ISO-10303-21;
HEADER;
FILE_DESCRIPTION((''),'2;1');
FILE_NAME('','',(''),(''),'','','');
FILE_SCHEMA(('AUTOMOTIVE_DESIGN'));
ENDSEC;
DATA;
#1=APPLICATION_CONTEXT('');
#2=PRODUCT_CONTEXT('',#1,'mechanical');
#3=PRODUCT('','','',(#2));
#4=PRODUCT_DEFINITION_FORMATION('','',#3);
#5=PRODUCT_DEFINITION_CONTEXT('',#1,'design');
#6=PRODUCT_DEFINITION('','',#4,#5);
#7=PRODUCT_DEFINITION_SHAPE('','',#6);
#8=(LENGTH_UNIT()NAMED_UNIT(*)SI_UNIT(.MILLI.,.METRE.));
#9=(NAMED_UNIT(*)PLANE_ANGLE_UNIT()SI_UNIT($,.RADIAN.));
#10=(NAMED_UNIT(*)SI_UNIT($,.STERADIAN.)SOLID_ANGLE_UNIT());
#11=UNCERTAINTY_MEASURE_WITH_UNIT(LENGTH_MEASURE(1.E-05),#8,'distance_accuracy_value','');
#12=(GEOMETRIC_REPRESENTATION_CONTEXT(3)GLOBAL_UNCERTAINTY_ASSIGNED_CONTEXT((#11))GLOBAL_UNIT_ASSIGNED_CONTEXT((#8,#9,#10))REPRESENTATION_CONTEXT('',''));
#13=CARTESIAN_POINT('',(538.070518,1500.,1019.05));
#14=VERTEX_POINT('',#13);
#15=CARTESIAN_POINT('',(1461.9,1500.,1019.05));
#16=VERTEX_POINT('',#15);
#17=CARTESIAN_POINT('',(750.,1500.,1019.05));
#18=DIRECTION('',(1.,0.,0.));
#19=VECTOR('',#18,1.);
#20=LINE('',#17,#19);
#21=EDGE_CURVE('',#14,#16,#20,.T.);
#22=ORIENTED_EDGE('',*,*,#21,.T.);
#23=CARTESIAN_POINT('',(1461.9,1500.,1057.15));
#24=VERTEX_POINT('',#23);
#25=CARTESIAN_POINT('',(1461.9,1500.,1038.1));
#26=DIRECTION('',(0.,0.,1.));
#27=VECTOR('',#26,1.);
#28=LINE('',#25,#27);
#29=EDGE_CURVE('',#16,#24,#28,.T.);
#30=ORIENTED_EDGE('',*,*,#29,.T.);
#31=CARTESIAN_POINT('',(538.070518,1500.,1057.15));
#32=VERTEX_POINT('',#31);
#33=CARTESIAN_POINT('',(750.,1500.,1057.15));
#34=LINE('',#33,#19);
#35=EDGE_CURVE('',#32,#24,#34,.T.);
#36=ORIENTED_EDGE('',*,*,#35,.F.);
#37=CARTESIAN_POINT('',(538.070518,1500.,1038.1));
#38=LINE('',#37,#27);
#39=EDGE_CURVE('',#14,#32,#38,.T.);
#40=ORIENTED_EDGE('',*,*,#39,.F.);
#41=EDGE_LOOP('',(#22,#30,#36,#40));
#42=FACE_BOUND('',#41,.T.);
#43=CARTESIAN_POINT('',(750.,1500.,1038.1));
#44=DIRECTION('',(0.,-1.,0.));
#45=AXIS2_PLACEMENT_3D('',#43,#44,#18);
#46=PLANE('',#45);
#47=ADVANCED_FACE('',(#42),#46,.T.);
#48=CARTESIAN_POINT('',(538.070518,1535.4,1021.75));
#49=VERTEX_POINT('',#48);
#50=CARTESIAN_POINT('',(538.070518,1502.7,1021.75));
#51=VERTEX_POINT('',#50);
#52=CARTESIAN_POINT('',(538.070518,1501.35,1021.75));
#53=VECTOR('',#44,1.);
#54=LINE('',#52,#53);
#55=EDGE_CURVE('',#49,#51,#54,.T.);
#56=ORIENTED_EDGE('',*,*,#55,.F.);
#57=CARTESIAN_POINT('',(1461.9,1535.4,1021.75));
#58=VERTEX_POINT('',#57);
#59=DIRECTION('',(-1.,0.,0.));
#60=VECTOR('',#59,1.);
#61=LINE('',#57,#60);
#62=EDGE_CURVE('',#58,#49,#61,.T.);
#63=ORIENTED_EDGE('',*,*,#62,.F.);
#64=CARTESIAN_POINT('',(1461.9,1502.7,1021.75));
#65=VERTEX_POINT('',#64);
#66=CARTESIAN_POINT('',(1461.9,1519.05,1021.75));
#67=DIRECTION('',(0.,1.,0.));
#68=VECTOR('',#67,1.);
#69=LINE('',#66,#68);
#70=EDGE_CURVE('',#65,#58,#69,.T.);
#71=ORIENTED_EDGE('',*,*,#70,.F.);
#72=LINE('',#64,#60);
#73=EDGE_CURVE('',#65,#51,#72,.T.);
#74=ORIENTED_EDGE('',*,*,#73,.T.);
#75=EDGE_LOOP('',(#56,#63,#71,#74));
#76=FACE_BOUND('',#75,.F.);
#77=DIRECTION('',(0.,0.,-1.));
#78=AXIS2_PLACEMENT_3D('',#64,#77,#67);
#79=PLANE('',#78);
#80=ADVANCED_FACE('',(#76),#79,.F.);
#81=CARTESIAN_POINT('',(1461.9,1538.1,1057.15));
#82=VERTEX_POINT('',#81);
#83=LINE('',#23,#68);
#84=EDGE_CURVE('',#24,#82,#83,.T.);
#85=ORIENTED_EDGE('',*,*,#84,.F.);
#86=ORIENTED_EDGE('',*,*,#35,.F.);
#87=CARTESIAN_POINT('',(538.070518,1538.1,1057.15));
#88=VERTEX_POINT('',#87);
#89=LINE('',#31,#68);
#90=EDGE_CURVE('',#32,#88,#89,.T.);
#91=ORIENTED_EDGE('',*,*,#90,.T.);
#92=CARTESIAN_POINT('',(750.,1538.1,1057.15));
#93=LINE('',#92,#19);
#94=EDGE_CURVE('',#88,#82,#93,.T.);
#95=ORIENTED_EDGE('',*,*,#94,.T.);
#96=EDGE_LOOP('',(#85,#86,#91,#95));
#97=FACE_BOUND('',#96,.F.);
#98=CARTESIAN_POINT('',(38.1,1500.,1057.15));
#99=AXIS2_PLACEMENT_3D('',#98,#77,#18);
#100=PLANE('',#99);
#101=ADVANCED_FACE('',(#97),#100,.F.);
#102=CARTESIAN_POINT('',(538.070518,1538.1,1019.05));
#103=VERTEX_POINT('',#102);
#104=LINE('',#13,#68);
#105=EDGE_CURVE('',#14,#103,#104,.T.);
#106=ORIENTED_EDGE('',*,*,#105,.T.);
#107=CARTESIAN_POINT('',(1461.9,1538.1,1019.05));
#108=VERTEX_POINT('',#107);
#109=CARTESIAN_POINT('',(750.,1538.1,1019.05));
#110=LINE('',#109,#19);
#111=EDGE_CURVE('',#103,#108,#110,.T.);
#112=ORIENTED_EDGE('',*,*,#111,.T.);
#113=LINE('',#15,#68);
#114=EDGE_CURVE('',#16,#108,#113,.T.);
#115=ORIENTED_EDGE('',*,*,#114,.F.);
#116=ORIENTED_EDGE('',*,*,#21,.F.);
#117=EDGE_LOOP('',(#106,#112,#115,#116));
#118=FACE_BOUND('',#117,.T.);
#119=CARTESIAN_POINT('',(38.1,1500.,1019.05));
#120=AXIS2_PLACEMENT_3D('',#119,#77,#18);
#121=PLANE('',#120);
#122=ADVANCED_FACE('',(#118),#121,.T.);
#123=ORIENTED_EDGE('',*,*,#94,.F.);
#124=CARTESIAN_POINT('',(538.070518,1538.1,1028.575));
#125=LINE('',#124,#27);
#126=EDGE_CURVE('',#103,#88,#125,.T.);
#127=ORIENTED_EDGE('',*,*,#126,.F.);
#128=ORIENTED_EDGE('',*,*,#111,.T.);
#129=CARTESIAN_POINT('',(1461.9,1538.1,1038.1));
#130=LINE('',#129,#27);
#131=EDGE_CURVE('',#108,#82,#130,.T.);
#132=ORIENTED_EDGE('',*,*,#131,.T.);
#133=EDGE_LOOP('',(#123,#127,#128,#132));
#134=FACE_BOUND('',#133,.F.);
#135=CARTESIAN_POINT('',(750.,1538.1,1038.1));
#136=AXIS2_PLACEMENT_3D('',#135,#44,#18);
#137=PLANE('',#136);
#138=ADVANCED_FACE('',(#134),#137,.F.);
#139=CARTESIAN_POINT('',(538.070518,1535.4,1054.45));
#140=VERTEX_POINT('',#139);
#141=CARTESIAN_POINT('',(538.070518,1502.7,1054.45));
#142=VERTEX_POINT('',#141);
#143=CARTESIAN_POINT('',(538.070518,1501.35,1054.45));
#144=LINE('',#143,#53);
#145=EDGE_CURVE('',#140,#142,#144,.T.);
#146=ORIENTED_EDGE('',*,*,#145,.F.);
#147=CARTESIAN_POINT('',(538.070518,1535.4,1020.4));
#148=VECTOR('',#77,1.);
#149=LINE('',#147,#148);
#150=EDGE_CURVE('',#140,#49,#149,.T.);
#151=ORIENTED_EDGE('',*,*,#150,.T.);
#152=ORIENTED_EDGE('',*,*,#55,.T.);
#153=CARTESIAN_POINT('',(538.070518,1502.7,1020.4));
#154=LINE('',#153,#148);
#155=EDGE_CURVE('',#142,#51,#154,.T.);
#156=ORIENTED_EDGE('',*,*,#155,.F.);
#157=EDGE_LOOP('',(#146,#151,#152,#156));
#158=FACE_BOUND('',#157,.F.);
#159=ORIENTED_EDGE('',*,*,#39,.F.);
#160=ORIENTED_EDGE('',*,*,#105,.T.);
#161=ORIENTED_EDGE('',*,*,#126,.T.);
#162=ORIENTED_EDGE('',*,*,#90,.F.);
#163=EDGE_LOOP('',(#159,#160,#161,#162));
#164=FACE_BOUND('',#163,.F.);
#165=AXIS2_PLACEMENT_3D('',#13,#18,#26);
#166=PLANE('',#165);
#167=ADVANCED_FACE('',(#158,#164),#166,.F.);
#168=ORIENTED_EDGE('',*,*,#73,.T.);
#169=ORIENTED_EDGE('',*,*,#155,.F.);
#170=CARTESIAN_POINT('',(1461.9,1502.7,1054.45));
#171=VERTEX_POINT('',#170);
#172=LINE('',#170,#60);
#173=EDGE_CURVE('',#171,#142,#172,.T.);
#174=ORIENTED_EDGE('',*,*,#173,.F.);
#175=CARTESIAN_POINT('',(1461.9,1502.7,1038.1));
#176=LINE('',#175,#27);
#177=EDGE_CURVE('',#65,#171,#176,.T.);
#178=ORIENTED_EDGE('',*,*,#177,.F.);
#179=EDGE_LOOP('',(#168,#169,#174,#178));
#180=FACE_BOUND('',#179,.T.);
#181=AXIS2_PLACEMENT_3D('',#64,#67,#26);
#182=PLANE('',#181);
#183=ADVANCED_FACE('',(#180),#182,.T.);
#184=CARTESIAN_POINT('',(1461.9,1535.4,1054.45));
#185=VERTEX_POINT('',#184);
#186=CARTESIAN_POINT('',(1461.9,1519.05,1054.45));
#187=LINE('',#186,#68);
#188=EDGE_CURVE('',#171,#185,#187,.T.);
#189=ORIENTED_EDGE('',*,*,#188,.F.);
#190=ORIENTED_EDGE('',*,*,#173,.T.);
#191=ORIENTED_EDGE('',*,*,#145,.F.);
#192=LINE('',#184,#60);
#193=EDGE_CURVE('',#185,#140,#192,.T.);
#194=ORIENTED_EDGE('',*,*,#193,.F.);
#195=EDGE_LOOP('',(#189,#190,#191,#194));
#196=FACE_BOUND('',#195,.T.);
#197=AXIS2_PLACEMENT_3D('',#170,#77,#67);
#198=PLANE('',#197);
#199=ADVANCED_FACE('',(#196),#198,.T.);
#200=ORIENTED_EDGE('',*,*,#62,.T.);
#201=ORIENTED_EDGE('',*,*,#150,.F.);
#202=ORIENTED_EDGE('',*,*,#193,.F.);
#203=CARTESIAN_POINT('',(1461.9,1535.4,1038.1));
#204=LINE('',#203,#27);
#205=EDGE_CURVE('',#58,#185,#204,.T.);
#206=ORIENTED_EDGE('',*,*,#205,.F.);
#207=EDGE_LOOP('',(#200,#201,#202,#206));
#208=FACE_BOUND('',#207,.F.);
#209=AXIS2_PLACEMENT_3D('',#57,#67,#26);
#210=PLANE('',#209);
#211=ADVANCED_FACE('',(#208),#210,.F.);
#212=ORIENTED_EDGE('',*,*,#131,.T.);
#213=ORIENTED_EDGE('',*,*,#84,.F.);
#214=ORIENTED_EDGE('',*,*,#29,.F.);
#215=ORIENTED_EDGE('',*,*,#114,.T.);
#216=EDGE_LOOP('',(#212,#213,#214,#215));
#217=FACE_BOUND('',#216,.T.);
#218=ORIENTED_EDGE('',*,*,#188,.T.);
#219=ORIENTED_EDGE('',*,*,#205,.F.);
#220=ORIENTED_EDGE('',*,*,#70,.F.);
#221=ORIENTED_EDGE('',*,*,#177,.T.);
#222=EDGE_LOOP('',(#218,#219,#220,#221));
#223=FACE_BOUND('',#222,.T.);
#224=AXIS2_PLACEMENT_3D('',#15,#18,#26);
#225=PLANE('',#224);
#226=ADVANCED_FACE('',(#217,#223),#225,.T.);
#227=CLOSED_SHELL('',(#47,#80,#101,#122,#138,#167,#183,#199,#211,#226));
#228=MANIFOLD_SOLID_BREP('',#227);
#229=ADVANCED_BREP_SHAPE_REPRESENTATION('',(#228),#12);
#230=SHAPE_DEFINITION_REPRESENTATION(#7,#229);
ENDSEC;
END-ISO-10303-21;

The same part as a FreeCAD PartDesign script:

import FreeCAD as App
import Part
import Sketcher
Q = App.Units.Quantity


def add_polygon(sketch, points):
    """Adds a closed chain of lines whose ends are joined by coincident constraints."""
    first, n = sketch.GeometryCount, len(points)
    for a, b in zip(points, points[1:] + points[:1]):
        sketch.addGeometry(Part.LineSegment(App.Vector(*a, 0), App.Vector(*b, 0)), False)
    for i in range(n):
        sketch.addConstraint(Sketcher.Constraint("Coincident", first + i, 2, first + (i + 1) % n, 1))

doc = App.newDocument("Part")
body = doc.addObject("PartDesign::Body", "Body")

sketch1 = body.newObject("Sketcher::SketchObject", "Sketch")
sketch1.AttachmentSupport = (doc.getObject("XZ_Plane"), [""])
sketch1.MapMode = "FlatFace"
sketch1.AttachmentOffset = App.Placement(App.Vector(0, 0, 38.1), App.Rotation())
add_polygon(sketch1, [(38, 1057), (38, 1019), (1462, 1019), (1462, 1057)])
sketch1.addConstraint(Sketcher.Constraint("Vertical", 0))
sketch1.addConstraint(Sketcher.Constraint("Horizontal", 1))
sketch1.addConstraint(Sketcher.Constraint("Vertical", 2))
sketch1.addConstraint(Sketcher.Constraint("Horizontal", 3))
sketch1.addConstraint(Sketcher.Constraint("DistanceX", 1, 1, 1, 2, Q("1423.8 mm")))
sketch1.addConstraint(Sketcher.Constraint("DistanceY", 0, 2, 0, 1, Q("38.1 mm")))
sketch1.addConstraint(Sketcher.Constraint("DistanceX", -1, 1, 0, 2, Q("38.1 mm")))
sketch1.addConstraint(Sketcher.Constraint("DistanceY", -1, 1, 0, 2, Q("1019.05 mm")))
pad1 = body.newObject("PartDesign::Pad", "Pad")
pad1.Profile = sketch1
pad1.Length = 38.1
pad1.Reversed = True

sketch2 = body.newObject("Sketcher::SketchObject", "Sketch001")
sketch2.AttachmentSupport = (doc.getObject("YZ_Plane"), [""])
sketch2.MapMode = "FlatFace"
sketch2.AttachmentOffset = App.Placement(App.Vector(0, 0, 1461.9), App.Rotation())
add_polygon(sketch2, [(-35, 1054), (-35, 1022), (-3, 1022), (-3, 1054)])
sketch2.addConstraint(Sketcher.Constraint("Vertical", 0))
sketch2.addConstraint(Sketcher.Constraint("Horizontal", 1))
sketch2.addConstraint(Sketcher.Constraint("Vertical", 2))
sketch2.addConstraint(Sketcher.Constraint("Horizontal", 3))
sketch2.addConstraint(Sketcher.Constraint("Equal", 3, 0))
sketch2.addConstraint(Sketcher.Constraint("DistanceX", 1, 1, 1, 2, Q("32.7 mm")))
sketch2.addConstraint(Sketcher.Constraint("DistanceX", 0, 2, -1, 1, Q("35.4 mm")))
sketch2.addConstraint(Sketcher.Constraint("DistanceY", -1, 1, 0, 2, Q("1021.75 mm")))
pocket1 = body.newObject("PartDesign::Pocket", "Pocket")
pocket1.Profile = sketch2
pocket1.Type = "ThroughAll"

sketch3 = body.newObject("Sketcher::SketchObject", "Sketch002")
sketch3.AttachmentSupport = (doc.getObject("XZ_Plane"), [""])
sketch3.MapMode = "FlatFace"
sketch3.AttachmentOffset = App.Placement(App.Vector(0, 0, 38.1), App.Rotation())
add_polygon(sketch3, [(38, 1057), (38, 1019), (538, 1019), (538, 1057)])
sketch3.addConstraint(Sketcher.Constraint("Vertical", 0))
sketch3.addConstraint(Sketcher.Constraint("Horizontal", 1))
sketch3.addConstraint(Sketcher.Constraint("Vertical", 2))
sketch3.addConstraint(Sketcher.Constraint("Horizontal", 3))
sketch3.addConstraint(Sketcher.Constraint("DistanceY", 0, 2, 0, 1, Q("38.1 mm")))
sketch3.addConstraint(Sketcher.Constraint("DistanceX", -1, 1, 0, 2, Q("38.1 mm")))
sketch3.addConstraint(Sketcher.Constraint("DistanceY", -1, 1, 0, 2, Q("1019.05 mm")))
sketch3.addConstraint(Sketcher.Constraint("DistanceX", 1, 1, 1, 2, Q("499.970518 mm")))
pocket2 = body.newObject("PartDesign::Pocket", "Pocket001")
pocket2.Profile = sketch3
pocket2.Type = "ThroughAll"
body2 = doc.addObject("PartDesign::Body", "Body001")
doc.recompute()

body.Placement = App.Placement(App.Vector(0, 1538.1, 0), App.Rotation(App.Vector(0, 0, 1), 0))
boolean = body2.newObject("PartDesign::Boolean", "Boolean")
boolean.Type = "Fuse"
boolean.addObjects([body])

doc.recompute()
